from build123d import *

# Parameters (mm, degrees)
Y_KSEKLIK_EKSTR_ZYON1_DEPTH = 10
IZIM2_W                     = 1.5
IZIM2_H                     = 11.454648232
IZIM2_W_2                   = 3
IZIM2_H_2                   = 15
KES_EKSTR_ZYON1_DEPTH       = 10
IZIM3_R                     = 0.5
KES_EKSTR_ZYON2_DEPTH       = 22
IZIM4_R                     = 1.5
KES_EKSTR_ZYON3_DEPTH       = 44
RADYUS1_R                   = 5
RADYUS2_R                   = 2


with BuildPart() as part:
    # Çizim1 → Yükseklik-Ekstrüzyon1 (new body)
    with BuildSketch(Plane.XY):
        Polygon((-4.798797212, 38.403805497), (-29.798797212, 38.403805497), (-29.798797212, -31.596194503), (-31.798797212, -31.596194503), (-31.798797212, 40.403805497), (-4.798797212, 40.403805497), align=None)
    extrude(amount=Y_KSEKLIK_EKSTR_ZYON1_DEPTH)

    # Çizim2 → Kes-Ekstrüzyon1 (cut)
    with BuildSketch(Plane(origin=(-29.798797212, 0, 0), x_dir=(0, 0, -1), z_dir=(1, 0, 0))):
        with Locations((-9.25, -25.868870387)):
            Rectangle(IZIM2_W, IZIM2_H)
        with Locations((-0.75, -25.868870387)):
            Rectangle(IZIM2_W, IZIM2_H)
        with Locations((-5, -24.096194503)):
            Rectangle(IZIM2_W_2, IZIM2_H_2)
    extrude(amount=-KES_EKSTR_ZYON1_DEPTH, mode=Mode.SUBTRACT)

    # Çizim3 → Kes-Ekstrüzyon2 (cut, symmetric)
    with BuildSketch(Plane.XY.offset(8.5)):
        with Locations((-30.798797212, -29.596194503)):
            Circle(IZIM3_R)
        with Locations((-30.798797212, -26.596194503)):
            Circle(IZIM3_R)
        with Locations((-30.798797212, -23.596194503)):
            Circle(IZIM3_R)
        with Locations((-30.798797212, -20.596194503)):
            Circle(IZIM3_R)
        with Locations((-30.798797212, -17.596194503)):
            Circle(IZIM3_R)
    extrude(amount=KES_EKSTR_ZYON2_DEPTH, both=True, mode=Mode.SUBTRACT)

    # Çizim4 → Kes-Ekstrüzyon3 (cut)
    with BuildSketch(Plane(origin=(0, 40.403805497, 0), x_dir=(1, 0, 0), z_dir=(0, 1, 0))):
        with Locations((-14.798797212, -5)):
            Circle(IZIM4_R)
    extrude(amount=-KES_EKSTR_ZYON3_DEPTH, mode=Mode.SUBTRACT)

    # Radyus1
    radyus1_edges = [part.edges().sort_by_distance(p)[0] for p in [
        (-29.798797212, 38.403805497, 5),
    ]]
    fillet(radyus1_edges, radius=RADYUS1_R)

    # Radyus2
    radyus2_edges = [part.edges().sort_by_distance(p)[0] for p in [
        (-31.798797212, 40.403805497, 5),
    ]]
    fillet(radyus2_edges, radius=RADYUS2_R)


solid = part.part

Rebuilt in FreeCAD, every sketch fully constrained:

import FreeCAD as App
import Part
import Sketcher

V = App.Vector


def edges_at(feature, points):
    """Names of the edges that pass closest to the given points."""
    edges = feature.Shape.Edges
    near = lambda p: min(range(len(edges)), key=lambda i: edges[i].distToShape(Part.Vertex(*p))[0])
    return sorted({f"Edge{near(p) + 1}" for p in points})

doc = App.newDocument("Part")
body = doc.addObject("PartDesign::Body", "Body")

sketch1 = body.newObject("Sketcher::SketchObject", "Sketch")
sketch1.AttachmentSupport = (doc.getObject("XY_Plane"), [""])
sketch1.MapMode = "FlatFace"
sketch1.addGeometry([
    Part.LineSegment(V(-29.8, 38.4, 0), V(-4.8, 38.4, 0)),
    Part.LineSegment(V(-4.8, 38.4, 0), V(-4.8, 40.4, 0)),
    Part.LineSegment(V(-4.8, 40.4, 0), V(-31.8, 40.4, 0)),
    Part.LineSegment(V(-31.8, 40.4, 0), V(-31.8, -31.6, 0)),
    Part.LineSegment(V(-31.8, -31.6, 0), V(-29.8, -31.6, 0)),
    Part.LineSegment(V(-29.8, -31.6, 0), V(-29.8, 38.4, 0)),
], False)
sketch1.addConstraint([
    Sketcher.Constraint("Coincident", 0, 2, 1, 1),
    Sketcher.Constraint("Coincident", 1, 2, 2, 1),
    Sketcher.Constraint("Coincident", 2, 2, 3, 1),
    Sketcher.Constraint("Coincident", 3, 2, 4, 1),
    Sketcher.Constraint("Coincident", 4, 2, 5, 1),
    Sketcher.Constraint("Coincident", 5, 2, 0, 1),
    Sketcher.Constraint("Horizontal", 0),
    Sketcher.Constraint("Vertical", 1),
    Sketcher.Constraint("Horizontal", 2),
    Sketcher.Constraint("Vertical", 3),
    Sketcher.Constraint("Horizontal", 4),
    Sketcher.Constraint("Vertical", 5),
    Sketcher.Constraint("Equal", 4, 1),
    Sketcher.Constraint("DistanceX", 0, 1, 0, 2, 25.0),
    Sketcher.Constraint("DistanceX", 2, 2, 2, 1, 27.0),
    Sketcher.Constraint("DistanceY", 3, 2, 3, 1, 72.0),
    Sketcher.Constraint("DistanceX", 0, 2, -1, 1, 4.798797),
    Sketcher.Constraint("DistanceY", -1, 1, 0, 2, 38.403805),
])
pad1 = body.newObject("PartDesign::Pad", "Pad")
pad1.Profile = sketch1
pad1.Length = 10

sketch2 = body.newObject("Sketcher::SketchObject", "Sketch001")
sketch2.AttachmentSupport = (doc.getObject("YZ_Plane"), [""])
sketch2.MapMode = "FlatFace"
sketch2.AttachmentOffset = App.Placement(V(0, 0, -29.798797), App.Rotation())
sketch2.addGeometry([
    Part.LineSegment(V(-20.1, 10, 0), V(-31.6, 10, 0)),
    Part.LineSegment(V(-31.6, 10, 0), V(-31.6, 8.5, 0)),
    Part.LineSegment(V(-31.6, 8.5, 0), V(-20.1, 8.5, 0)),
    Part.LineSegment(V(-20.1, 8.5, 0), V(-20.1, 10, 0)),
    Part.LineSegment(V(-20.1, 1.5, 0), V(-31.6, 1.5, 0)),
    Part.LineSegment(V(-31.6, 1.5, 0), V(-31.6, 0, 0)),
    Part.LineSegment(V(-31.6, 0, 0), V(-20.1, 0, 0)),
    Part.LineSegment(V(-20.1, 0, 0), V(-20.1, 1.5, 0)),
    Part.LineSegment(V(-16.6, 6.5, 0), V(-31.6, 6.5, 0)),
    Part.LineSegment(V(-31.6, 6.5, 0), V(-31.6, 3.5, 0)),
    Part.LineSegment(V(-31.6, 3.5, 0), V(-16.6, 3.5, 0)),
    Part.LineSegment(V(-16.6, 3.5, 0), V(-16.6, 6.5, 0)),
], False)
sketch2.addConstraint([
    Sketcher.Constraint("Coincident", 0, 2, 1, 1),
    Sketcher.Constraint("Coincident", 1, 2, 2, 1),
    Sketcher.Constraint("Coincident", 2, 2, 3, 1),
    Sketcher.Constraint("Coincident", 3, 2, 0, 1),
    Sketcher.Constraint("Coincident", 4, 2, 5, 1),
    Sketcher.Constraint("Coincident", 5, 2, 6, 1),
    Sketcher.Constraint("Coincident", 6, 2, 7, 1),
    Sketcher.Constraint("Coincident", 7, 2, 4, 1),
    Sketcher.Constraint("Coincident", 8, 2, 9, 1),
    Sketcher.Constraint("Coincident", 9, 2, 10, 1),
    Sketcher.Constraint("Coincident", 10, 2, 11, 1),
    Sketcher.Constraint("Coincident", 11, 2, 8, 1),
    Sketcher.Constraint("Horizontal", 0),
    Sketcher.Constraint("Vertical", 1),
    Sketcher.Constraint("Horizontal", 2),
    Sketcher.Constraint("Vertical", 3),
    Sketcher.Constraint("Horizontal", 4),
    Sketcher.Constraint("Vertical", 5),
    Sketcher.Constraint("Horizontal", 6),
    Sketcher.Constraint("Vertical", 7),
    Sketcher.Constraint("Horizontal", 8),
    Sketcher.Constraint("Vertical", 9),
    Sketcher.Constraint("Horizontal", 10),
    Sketcher.Constraint("Vertical", 11),
    Sketcher.Constraint("PointOnObject", 5, 2, -1),
    Sketcher.Constraint("Vertical", 1, 2, 4, 2),
    Sketcher.Constraint("Vertical", 3, 2, 6, 2),
    Sketcher.Constraint("Vertical", 5, 2, 8, 2),
    Sketcher.Constraint("Equal", 3, 5),
    Sketcher.Constraint("DistanceX", 8, 2, 8, 1, 15.0),
    Sketcher.Constraint("DistanceY", 9, 2, 9, 1, 3.0),
    Sketcher.Constraint("DistanceY", 1, 2, 1, 1, 1.5),
    Sketcher.Constraint("DistanceY", -1, 1, 0, 2, 10.0),
    Sketcher.Constraint("DistanceY", 8, 2, 1, 2, 2.0),
    Sketcher.Constraint("DistanceX", 0, 2, 0, 1, 11.454648),
    Sketcher.Constraint("DistanceX", 0, 2, -1, 1, 31.596195),
])
pocket1 = body.newObject("PartDesign::Pocket", "Pocket")
pocket1.Profile = sketch2
pocket1.Length = 10

sketch3 = body.newObject("Sketcher::SketchObject", "Sketch002")
sketch3.AttachmentSupport = (doc.getObject("XY_Plane"), [""])
sketch3.MapMode = "FlatFace"
sketch3.AttachmentOffset = App.Placement(V(0, 0, 8.5), App.Rotation())
sketch3.addGeometry([
    Part.Circle(V(-30.8, -29.6, 0), V(0, 0, 1), 0.5),
    Part.Circle(V(-30.8, -26.6, 0), V(0, 0, 1), 0.5),
    Part.Circle(V(-30.8, -23.6, 0), V(0, 0, 1), 0.5),
    Part.Circle(V(-30.8, -20.6, 0), V(0, 0, 1), 0.5),
    Part.Circle(V(-30.8, -17.6, 0), V(0, 0, 1), 0.5),
], False)
sketch3.addConstraint([
    Sketcher.Constraint("Equal", 0, 1),
    Sketcher.Constraint("Equal", 1, 2),
    Sketcher.Constraint("Equal", 2, 3),
    Sketcher.Constraint("Equal", 3, 4),
    Sketcher.Constraint("Vertical", 0, 3, 1, 3),
    Sketcher.Constraint("Vertical", 1, 3, 2, 3),
    Sketcher.Constraint("Vertical", 2, 3, 3, 3),
    Sketcher.Constraint("Vertical", 3, 3, 4, 3),
    Sketcher.Constraint("Diameter", 0, 1.0),
    Sketcher.Constraint("DistanceY", 0, 3, 1, 3, 3.0),
    Sketcher.Constraint("DistanceY", 1, 3, 2, 3, 3.0),
    Sketcher.Constraint("DistanceY", 2, 3, 3, 3, 3.0),
    Sketcher.Constraint("DistanceY", 3, 3, 4, 3, 3.0),
    Sketcher.Constraint("DistanceX", 0, 3, -1, 1, 30.798797),
    Sketcher.Constraint("DistanceY", 0, 3, -1, 1, 29.596195),
])
pocket2 = body.newObject("PartDesign::Pocket", "Pocket001")
pocket2.Profile = sketch3
pocket2.Length = 44
pocket2.Midplane = True

sketch4 = body.newObject("Sketcher::SketchObject", "Sketch003")
sketch4.AttachmentSupport = (doc.getObject("XZ_Plane"), [""])
sketch4.MapMode = "FlatFace"
sketch4.AttachmentOffset = App.Placement(V(0, 0, -40.403805), App.Rotation())
sketch4.addGeometry(Part.Circle(V(-14.8, 5, 0), V(0, 0, 1), 1.5), False)
sketch4.addConstraint([
    Sketcher.Constraint("Diameter", 0, 3.0),
    Sketcher.Constraint("DistanceY", -1, 1, 0, 3, 5.0),
    Sketcher.Constraint("DistanceX", 0, 3, -1, 1, 14.798797),
])
pocket3 = body.newObject("PartDesign::Pocket", "Pocket002")
pocket3.Profile = sketch4
pocket3.Length = 44
pocket3.Reversed = True
doc.recompute()

fillet = body.newObject("PartDesign::Fillet", "Fillet")
fillet.Base = (pocket3, edges_at(pocket3, [(-29.799, 38.404, 5)]))
fillet.Radius = 5
doc.recompute()

fillet2 = body.newObject("PartDesign::Fillet", "Fillet001")
fillet2.Base = (fillet, edges_at(fillet, [(-31.799, 40.404, 5)]))
fillet2.Radius = 2

doc.recompute()
